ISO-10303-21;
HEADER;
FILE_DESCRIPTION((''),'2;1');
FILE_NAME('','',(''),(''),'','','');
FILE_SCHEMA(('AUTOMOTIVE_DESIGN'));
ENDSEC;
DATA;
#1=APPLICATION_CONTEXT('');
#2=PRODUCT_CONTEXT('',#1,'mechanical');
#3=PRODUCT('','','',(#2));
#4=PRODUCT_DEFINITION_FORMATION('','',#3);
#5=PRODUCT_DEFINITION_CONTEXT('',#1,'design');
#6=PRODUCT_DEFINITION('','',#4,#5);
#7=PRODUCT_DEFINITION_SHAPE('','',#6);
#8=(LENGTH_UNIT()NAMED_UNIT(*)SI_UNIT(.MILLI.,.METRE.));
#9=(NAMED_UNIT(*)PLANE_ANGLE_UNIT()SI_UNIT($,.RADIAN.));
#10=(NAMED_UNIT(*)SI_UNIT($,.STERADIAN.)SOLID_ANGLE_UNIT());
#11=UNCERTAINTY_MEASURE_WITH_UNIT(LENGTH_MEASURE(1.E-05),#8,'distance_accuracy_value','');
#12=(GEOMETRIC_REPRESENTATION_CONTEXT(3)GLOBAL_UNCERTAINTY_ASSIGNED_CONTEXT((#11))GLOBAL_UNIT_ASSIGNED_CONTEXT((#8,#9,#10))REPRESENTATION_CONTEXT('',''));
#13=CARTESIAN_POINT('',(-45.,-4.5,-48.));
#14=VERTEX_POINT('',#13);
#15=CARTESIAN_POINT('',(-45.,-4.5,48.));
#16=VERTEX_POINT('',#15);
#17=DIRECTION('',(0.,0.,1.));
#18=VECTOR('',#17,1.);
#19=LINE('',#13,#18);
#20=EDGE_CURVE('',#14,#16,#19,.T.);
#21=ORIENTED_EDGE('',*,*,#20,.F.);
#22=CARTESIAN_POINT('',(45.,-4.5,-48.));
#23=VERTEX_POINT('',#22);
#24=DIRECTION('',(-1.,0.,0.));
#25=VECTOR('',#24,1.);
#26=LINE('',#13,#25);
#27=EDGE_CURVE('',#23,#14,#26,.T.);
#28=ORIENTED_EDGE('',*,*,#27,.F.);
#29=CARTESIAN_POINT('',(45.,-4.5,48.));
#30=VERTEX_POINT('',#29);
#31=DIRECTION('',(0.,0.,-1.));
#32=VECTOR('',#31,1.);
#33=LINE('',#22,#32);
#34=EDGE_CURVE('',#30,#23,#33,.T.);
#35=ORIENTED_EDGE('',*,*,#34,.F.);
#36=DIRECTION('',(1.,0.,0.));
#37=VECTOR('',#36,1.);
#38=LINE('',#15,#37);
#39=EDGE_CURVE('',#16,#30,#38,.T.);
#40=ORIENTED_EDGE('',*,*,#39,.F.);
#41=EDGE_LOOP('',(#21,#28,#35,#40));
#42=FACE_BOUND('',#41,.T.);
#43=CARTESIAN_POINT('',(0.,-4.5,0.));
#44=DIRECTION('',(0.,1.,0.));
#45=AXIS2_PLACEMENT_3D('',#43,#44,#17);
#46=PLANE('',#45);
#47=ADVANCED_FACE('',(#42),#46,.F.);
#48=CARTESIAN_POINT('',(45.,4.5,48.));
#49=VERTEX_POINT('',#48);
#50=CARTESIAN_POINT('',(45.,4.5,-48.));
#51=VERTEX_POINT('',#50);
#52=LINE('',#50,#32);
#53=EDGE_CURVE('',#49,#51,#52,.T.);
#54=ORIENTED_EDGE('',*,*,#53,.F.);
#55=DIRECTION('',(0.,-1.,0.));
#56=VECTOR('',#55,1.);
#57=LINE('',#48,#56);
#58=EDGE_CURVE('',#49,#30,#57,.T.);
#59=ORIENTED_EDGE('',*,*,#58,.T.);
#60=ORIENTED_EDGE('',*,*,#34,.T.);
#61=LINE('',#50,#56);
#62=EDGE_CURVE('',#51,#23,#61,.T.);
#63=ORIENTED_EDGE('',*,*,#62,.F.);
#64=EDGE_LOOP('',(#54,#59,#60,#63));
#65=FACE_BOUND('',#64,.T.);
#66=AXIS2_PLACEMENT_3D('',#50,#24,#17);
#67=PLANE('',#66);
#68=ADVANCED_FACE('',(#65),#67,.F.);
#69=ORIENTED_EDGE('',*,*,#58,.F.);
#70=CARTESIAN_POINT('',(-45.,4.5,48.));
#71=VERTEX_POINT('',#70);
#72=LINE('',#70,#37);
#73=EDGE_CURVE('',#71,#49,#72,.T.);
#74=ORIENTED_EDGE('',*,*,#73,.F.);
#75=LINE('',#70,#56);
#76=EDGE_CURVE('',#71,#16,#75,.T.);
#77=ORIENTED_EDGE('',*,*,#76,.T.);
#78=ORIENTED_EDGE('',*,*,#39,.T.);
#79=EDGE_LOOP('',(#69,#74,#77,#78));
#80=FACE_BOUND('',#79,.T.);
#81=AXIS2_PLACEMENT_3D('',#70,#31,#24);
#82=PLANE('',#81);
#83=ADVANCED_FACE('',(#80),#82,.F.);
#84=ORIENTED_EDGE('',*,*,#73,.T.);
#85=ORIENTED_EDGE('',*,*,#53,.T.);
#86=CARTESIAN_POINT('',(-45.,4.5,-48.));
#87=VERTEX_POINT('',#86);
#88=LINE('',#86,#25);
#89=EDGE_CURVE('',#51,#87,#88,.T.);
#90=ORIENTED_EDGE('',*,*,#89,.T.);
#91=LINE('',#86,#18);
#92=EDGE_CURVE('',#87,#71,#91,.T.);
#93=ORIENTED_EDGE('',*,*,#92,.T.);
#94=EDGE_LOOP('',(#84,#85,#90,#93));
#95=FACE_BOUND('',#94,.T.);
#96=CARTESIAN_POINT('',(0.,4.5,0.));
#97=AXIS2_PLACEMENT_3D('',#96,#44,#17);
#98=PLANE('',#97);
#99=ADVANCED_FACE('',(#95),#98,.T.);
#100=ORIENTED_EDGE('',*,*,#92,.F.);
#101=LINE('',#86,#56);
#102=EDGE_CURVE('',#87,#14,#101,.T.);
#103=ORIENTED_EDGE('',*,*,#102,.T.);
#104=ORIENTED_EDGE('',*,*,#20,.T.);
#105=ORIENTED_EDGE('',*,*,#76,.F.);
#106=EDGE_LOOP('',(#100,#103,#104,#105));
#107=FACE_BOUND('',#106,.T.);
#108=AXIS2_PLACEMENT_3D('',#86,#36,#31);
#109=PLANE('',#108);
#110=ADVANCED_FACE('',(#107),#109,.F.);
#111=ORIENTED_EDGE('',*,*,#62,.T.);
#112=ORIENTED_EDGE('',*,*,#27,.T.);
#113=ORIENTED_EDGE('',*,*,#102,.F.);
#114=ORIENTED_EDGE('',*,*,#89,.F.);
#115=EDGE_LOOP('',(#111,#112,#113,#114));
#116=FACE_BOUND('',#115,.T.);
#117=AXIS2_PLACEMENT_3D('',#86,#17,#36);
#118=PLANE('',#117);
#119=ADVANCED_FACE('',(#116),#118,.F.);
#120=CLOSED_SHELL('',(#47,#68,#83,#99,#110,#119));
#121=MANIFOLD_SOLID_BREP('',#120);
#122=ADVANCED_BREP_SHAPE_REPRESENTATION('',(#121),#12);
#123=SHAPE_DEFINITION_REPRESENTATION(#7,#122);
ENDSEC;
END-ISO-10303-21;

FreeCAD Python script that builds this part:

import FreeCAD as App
import Part
import Sketcher
Q = App.Units.Quantity


def add_polygon(sketch, points):
    """Adds a closed chain of lines whose ends are joined by coincident constraints."""
    first, n = sketch.GeometryCount, len(points)
    for a, b in zip(points, points[1:] + points[:1]):
        sketch.addGeometry(Part.LineSegment(App.Vector(*a, 0), App.Vector(*b, 0)), False)
    for i in range(n):
        sketch.addConstraint(Sketcher.Constraint("Coincident", first + i, 2, first + (i + 1) % n, 1))

doc = App.newDocument("Part")
params = doc.addObject("Spreadsheet::Sheet", "Params")
for row, (alias, value) in enumerate([
    ("sketch1_width", "90 mm"),
    ("sketch1_height", "96 mm"),
    ("pad1_length", "9 mm"),
], start=1):
    params.set(f"A{row}", alias)
    params.set(f"B{row}", "=" + value)
    params.setAlias(f"B{row}", alias)

body = doc.addObject("PartDesign::Body", "Body")

sketch1 = body.newObject("Sketcher::SketchObject", "Sketch")
sketch1.AttachmentSupport = (doc.getObject("XZ_Plane"), [""])
sketch1.MapMode = "FlatFace"
add_polygon(sketch1, [(-45, -48), (-45, 48), (45, 48), (45, -48)])
sketch1.addConstraint([
    Sketcher.Constraint("Vertical", 0),
    Sketcher.Constraint("Horizontal", 1),
    Sketcher.Constraint("Vertical", 2),
    Sketcher.Constraint("Horizontal", 3),
    Sketcher.Constraint("Symmetric", 0, 2, 2, 2, -1, 1),
    Sketcher.Constraint("DistanceX", 1, 1, 1, 2, Q("90 mm")),
    Sketcher.Constraint("DistanceY", 0, 1, 0, 2, Q("96 mm")),
])
sketch1.setExpression("Constraints[9]", "Params.sketch1_width")
sketch1.setExpression("Constraints[10]", "Params.sketch1_height")
pad1 = body.newObject("PartDesign::Pad", "Pad")
pad1.Profile = sketch1
pad1.setExpression("Length", "Params.pad1_length")
pad1.Midplane = True

doc.recompute()
